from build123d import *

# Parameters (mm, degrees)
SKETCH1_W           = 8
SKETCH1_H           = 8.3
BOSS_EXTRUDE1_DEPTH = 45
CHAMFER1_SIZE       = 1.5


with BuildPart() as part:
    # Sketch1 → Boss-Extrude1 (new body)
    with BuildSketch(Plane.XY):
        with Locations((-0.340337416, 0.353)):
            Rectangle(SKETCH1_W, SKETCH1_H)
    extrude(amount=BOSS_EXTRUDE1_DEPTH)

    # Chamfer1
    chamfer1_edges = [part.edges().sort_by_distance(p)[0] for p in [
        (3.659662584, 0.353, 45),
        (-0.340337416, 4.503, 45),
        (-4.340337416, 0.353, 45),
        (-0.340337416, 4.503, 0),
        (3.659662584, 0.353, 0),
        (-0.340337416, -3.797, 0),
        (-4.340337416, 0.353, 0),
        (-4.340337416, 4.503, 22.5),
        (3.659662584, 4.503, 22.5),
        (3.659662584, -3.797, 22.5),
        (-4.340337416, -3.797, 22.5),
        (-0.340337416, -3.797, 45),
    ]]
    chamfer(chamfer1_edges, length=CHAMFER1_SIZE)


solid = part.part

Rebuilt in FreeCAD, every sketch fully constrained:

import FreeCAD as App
import Part
import Sketcher
from FreeCAD import Vector


def add_polygon(sketch, points):
    """Adds a closed chain of lines whose ends are joined by coincident constraints."""
    first, n = sketch.GeometryCount, len(points)
    for a, b in zip(points, points[1:] + points[:1]):
        sketch.addGeometry(Part.LineSegment(App.Vector(*a, 0), App.Vector(*b, 0)), False)
    for i in range(n):
        sketch.addConstraint(Sketcher.Constraint("Coincident", first + i, 2, first + (i + 1) % n, 1))

doc = App.newDocument("Part")
body = doc.addObject("PartDesign::Body", "Body")

# Sketch on XY plane
sketch1 = body.newObject("Sketcher::SketchObject", "Sketch")
sketch1.AttachmentSupport = (doc.getObject("XY_Plane"), [""])
sketch1.MapMode = "FlatFace"
add_polygon(sketch1, [(-4, 5), (-4, -4), (4, -4), (4, 5)])  # lines 0-3
sketch1.addConstraint(Sketcher.Constraint("Vertical", 0))
sketch1.addConstraint(Sketcher.Constraint("Horizontal", 1))
sketch1.addConstraint(Sketcher.Constraint("Vertical", 2))
sketch1.addConstraint(Sketcher.Constraint("Horizontal", 3))
sketch1.addConstraint(Sketcher.Constraint("DistanceX", 1, 1, 1, 2, 8.0))
sketch1.addConstraint(Sketcher.Constraint("DistanceY", 0, 2, 0, 1, 8.3))
sketch1.addConstraint(Sketcher.Constraint("DistanceY", 0, 2, -1, 1, 3.797))
sketch1.addConstraint(Sketcher.Constraint("DistanceX", 0, 2, -1, 1, 4.340337))
pad1 = body.newObject("PartDesign::Pad", "Pad")
pad1.Profile = sketch1
pad1.Length = 45
doc.recompute()

chamfer = body.newObject("PartDesign::Chamfer", "Chamfer")
chamfer.Base = (pad1, ["Edge1"])
chamfer.UseAllEdges = True
chamfer.Size = 1.5

doc.recompute()
